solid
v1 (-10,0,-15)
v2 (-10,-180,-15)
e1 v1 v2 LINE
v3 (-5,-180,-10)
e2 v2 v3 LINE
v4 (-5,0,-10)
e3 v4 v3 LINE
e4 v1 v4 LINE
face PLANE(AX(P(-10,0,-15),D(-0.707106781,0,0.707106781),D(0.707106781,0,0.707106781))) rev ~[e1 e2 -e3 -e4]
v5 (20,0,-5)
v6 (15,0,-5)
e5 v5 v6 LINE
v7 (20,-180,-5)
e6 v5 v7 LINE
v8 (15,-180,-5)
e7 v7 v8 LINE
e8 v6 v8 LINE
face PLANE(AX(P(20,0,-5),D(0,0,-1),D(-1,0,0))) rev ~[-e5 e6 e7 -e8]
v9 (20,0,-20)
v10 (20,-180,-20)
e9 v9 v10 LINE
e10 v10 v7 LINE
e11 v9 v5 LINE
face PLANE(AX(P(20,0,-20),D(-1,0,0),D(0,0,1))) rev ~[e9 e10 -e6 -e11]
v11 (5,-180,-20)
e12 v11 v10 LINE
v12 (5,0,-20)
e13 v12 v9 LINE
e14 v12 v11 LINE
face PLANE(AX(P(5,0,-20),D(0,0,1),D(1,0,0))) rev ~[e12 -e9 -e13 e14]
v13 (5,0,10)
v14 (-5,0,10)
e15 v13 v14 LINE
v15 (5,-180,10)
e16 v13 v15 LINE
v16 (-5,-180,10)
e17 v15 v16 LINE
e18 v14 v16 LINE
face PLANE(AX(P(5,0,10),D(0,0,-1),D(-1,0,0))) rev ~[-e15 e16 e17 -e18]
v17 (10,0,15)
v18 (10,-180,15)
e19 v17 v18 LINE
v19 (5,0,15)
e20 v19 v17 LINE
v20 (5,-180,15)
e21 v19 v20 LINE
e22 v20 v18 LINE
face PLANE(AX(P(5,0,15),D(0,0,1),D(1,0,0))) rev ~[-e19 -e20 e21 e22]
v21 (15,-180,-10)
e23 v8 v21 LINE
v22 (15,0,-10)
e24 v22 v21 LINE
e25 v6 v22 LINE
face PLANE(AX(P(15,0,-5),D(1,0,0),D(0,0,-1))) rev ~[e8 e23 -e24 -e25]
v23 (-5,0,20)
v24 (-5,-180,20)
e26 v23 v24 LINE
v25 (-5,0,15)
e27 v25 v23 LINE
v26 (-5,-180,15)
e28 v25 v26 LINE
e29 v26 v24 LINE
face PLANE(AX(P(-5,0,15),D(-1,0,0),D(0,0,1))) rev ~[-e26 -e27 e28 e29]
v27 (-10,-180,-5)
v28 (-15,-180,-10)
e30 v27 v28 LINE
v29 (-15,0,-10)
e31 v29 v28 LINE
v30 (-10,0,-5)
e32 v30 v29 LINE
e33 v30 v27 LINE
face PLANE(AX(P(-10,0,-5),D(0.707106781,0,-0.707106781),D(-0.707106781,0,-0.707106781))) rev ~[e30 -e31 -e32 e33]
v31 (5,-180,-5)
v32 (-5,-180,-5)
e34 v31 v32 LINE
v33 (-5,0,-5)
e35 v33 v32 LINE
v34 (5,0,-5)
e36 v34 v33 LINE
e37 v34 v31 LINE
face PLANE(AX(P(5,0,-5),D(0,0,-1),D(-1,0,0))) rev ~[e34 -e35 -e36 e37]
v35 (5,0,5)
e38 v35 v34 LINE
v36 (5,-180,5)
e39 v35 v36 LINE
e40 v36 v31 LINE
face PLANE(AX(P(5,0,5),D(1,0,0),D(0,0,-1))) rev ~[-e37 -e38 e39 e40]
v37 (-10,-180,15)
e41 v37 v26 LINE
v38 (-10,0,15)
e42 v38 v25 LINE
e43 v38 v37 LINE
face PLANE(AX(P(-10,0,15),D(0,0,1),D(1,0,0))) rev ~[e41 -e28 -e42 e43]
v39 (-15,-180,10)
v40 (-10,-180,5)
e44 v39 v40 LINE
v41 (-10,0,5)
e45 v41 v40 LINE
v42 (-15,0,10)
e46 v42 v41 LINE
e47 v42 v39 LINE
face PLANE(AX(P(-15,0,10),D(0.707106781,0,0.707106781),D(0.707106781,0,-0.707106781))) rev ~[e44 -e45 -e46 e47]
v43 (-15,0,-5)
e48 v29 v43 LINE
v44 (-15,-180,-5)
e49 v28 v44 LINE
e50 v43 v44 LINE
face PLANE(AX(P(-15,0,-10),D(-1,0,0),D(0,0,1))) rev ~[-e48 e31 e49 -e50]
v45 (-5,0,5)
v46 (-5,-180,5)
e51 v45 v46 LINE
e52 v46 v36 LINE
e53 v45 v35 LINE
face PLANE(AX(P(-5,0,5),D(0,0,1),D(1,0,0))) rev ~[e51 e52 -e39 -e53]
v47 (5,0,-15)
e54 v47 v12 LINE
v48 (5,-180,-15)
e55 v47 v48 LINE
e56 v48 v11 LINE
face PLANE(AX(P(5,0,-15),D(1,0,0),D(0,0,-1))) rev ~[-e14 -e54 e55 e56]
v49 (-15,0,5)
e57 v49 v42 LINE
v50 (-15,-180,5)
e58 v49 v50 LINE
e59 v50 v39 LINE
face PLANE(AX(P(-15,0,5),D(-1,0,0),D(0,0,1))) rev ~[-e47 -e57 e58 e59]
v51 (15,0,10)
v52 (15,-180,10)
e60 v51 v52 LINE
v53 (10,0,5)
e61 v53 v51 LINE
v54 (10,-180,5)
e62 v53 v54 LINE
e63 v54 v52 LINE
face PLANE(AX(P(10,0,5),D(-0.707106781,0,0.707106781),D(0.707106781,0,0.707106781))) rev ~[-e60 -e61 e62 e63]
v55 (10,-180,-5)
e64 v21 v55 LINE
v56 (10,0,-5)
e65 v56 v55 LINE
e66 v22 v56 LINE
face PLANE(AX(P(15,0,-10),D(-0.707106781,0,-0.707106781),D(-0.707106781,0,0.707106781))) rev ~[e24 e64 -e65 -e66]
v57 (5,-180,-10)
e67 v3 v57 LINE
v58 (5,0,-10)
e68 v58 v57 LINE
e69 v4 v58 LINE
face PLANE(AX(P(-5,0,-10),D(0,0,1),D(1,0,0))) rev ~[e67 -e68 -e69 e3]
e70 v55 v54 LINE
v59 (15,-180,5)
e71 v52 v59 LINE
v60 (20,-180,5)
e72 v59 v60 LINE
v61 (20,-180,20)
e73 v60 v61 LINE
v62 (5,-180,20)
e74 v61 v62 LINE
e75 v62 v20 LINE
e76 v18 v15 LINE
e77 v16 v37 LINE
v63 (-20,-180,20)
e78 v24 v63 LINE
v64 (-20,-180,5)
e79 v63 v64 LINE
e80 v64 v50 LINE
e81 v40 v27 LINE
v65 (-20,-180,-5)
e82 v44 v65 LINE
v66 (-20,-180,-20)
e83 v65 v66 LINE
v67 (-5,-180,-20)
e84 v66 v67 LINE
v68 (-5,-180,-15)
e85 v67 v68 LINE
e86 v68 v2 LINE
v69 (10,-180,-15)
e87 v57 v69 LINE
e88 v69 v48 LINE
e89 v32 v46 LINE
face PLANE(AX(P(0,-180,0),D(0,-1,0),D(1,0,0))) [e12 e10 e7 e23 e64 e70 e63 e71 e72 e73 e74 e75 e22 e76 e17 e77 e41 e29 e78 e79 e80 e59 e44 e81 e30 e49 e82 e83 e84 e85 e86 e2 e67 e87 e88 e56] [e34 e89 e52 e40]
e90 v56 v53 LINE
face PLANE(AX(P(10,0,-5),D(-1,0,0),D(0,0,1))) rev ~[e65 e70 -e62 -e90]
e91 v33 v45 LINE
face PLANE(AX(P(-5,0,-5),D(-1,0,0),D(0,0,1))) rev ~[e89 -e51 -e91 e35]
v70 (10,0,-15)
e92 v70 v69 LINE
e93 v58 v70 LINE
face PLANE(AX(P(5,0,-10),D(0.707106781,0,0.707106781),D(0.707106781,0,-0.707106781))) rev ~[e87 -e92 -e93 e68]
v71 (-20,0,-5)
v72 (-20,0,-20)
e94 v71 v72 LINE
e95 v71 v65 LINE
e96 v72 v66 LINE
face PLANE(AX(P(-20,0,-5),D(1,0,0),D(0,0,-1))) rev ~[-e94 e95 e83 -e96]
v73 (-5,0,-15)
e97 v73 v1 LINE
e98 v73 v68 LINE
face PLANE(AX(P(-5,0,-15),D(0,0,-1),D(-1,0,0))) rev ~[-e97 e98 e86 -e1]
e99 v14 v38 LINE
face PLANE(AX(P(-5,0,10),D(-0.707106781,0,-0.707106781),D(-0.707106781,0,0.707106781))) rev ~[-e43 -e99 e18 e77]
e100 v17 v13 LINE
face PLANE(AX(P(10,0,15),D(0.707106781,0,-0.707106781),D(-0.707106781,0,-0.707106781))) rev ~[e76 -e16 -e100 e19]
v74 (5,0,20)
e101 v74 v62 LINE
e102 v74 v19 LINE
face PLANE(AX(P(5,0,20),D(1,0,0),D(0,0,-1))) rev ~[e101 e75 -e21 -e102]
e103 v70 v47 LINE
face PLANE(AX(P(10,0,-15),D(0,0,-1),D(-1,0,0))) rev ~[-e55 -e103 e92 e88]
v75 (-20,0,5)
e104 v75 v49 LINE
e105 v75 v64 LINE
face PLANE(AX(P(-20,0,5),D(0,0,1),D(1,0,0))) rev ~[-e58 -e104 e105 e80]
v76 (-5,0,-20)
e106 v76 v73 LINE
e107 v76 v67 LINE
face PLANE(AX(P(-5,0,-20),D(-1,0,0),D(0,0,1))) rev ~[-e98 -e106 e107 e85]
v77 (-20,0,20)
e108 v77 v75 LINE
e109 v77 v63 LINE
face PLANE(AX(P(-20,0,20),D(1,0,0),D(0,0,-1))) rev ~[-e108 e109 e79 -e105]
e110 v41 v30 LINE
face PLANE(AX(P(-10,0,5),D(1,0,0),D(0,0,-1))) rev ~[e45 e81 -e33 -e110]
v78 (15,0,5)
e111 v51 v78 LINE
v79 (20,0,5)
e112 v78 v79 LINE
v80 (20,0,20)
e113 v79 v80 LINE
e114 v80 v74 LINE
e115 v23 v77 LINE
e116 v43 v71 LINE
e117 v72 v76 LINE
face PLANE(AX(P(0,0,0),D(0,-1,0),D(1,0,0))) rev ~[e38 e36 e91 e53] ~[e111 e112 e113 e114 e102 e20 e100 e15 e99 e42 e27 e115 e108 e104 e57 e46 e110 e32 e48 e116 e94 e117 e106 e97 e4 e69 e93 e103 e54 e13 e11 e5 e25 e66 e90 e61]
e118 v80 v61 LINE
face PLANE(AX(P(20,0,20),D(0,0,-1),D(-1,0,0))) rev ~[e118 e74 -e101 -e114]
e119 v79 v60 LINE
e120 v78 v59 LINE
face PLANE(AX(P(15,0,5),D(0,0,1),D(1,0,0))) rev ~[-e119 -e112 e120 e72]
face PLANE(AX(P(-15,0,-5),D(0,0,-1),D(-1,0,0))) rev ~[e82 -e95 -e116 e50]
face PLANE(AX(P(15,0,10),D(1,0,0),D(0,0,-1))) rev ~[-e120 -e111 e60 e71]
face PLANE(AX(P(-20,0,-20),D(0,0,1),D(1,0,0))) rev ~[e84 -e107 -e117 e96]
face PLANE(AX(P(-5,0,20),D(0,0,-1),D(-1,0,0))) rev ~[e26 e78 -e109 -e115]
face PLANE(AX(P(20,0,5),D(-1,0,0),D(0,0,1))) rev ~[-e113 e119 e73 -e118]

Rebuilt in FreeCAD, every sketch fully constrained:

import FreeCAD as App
import Part
import Sketcher


def add_polygon(sketch, points):
    """Adds a closed chain of lines whose ends are joined by coincident constraints."""
    first, n = sketch.GeometryCount, len(points)
    for a, b in zip(points, points[1:] + points[:1]):
        sketch.addGeometry(Part.LineSegment(App.Vector(*a, 0), App.Vector(*b, 0)), False)
    for i in range(n):
        sketch.addConstraint(Sketcher.Constraint("Coincident", first + i, 2, first + (i + 1) % n, 1))

doc = App.newDocument("Part")
body = doc.addObject("PartDesign::Body", "Body")

sketch1 = body.newObject("Sketcher::SketchObject", "Sketch")
sketch1.AttachmentSupport = (doc.getObject("XZ_Plane"), [""])
sketch1.MapMode = "FlatFace"
add_polygon(sketch1, [(20, 5), (20, 20), (5, 20), (5, 15), (10, 15), (5, 10), (-5, 10), (-10, 15), (-5, 15), (-5, 20), (-20, 20), (-20, 5), (-15, 5), (-15, 10), (-10, 5), (-10, -5), (-15, -10), (-15, -5), (-20, -5), (-20, -20), (-5, -20), (-5, -15), (-10, -15), (-5, -10), (5, -10), (10, -15), (5, -15), (5, -20), (20, -20), (20, -5), (15, -5), (15, -10), (10, -5), (10, 5), (15, 10), (15, 5)])
add_polygon(sketch1, [(-5, -5), (-5, 5), (5, 5), (5, -5)])
sketch1.addConstraint([
    Sketcher.Constraint("Vertical", 0),
    Sketcher.Constraint("Horizontal", 1),
    Sketcher.Constraint("Vertical", 2),
    Sketcher.Constraint("Horizontal", 3),
    Sketcher.Constraint("Horizontal", 5),
    Sketcher.Constraint("Horizontal", 7),
    Sketcher.Constraint("Vertical", 8),
    Sketcher.Constraint("Horizontal", 9),
    Sketcher.Constraint("Vertical", 10),
    Sketcher.Constraint("Horizontal", 11),
    Sketcher.Constraint("Vertical", 12),
    Sketcher.Constraint("Vertical", 14),
    Sketcher.Constraint("Vertical", 16),
    Sketcher.Constraint("Horizontal", 17),
    Sketcher.Constraint("Vertical", 18),
    Sketcher.Constraint("Horizontal", 19),
    Sketcher.Constraint("Vertical", 20),
    Sketcher.Constraint("Horizontal", 21),
    Sketcher.Constraint("Horizontal", 23),
    Sketcher.Constraint("Horizontal", 25),
    Sketcher.Constraint("Vertical", 26),
    Sketcher.Constraint("Horizontal", 27),
    Sketcher.Constraint("Vertical", 28),
    Sketcher.Constraint("Horizontal", 29),
    Sketcher.Constraint("Vertical", 30),
    Sketcher.Constraint("Vertical", 32),
    Sketcher.Constraint("Vertical", 34),
    Sketcher.Constraint("Horizontal", 35),
    Sketcher.Constraint("Vertical", 36),
    Sketcher.Constraint("Horizontal", 37),
    Sketcher.Constraint("Vertical", 38),
    Sketcher.Constraint("Horizontal", 39),
    Sketcher.Constraint("Symmetric", 0, 2, 18, 2, -1, 1),
    Sketcher.Constraint("Symmetric", 2, 2, 20, 2, -1, 1),
    Sketcher.Constraint("Symmetric", 4, 2, 22, 2, -1, 1),
    Sketcher.Constraint("Symmetric", 6, 2, 24, 2, -1, 1),
    Sketcher.Constraint("Symmetric", 8, 2, 26, 2, -1, 1),
    Sketcher.Constraint("Symmetric", 10, 2, 28, 2, -1, 1),
    Sketcher.Constraint("Symmetric", 12, 2, 30, 2, -1, 1),
    Sketcher.Constraint("Symmetric", 13, 2, 31, 2, -1, 1),
    Sketcher.Constraint("Symmetric", 15, 2, 33, 2, -1, 1),
    Sketcher.Constraint("Symmetric", 36, 2, 38, 2, -1, 1),
    Sketcher.Constraint("Symmetric", 3, 2, 6, 2, -2),
    Sketcher.Constraint("Symmetric", 1, 2, 8, 2, -2),
    Sketcher.Constraint("Symmetric", 17, 2, 28, 2, -2),
    Sketcher.Constraint("Symmetric", 15, 2, 30, 2, -2),
    Sketcher.Constraint("Perpendicular", 4, 6),
    Sketcher.Constraint("Parallel", 6, 13),
    Sketcher.Constraint("Perpendicular", 13, 15),
    Sketcher.Constraint("Parallel", 15, 22),
    Sketcher.Constraint("Perpendicular", 22, 24),
    Sketcher.Constraint("Perpendicular", 31, 33),
    Sketcher.Constraint("Horizontal", 5, 2, 12, 2),
    Sketcher.Constraint("Horizontal", 11, 2, 13, 2),
    Sketcher.Constraint("Horizontal", 14, 2, 16, 2),
    Sketcher.Constraint("Horizontal", 32, 2, 34, 2),
    Sketcher.Constraint("Horizontal", 35, 2, 36, 2),
    Sketcher.Constraint("Vertical", 2, 2, 4, 2),
    Sketcher.Constraint("Vertical", 6, 2, 13, 2),
    Sketcher.Constraint("Vertical", 22, 2, 36, 2),
    Sketcher.Constraint("Equal", 7, 11),
    Sketcher.Constraint("Equal", 27, 0),
    Sketcher.Constraint("Equal", 8, 12),
    Sketcher.Constraint("Equal", 39, 14),
    Sketcher.Constraint("DistanceX", 1, 2, 1, 1, 15.0),
    Sketcher.Constraint("DistanceX", 5, 2, 5, 1, 10.0),
])
pad1 = body.newObject("PartDesign::Pad", "Pad")
pad1.Profile = sketch1
pad1.Length = 180

doc.recompute()
